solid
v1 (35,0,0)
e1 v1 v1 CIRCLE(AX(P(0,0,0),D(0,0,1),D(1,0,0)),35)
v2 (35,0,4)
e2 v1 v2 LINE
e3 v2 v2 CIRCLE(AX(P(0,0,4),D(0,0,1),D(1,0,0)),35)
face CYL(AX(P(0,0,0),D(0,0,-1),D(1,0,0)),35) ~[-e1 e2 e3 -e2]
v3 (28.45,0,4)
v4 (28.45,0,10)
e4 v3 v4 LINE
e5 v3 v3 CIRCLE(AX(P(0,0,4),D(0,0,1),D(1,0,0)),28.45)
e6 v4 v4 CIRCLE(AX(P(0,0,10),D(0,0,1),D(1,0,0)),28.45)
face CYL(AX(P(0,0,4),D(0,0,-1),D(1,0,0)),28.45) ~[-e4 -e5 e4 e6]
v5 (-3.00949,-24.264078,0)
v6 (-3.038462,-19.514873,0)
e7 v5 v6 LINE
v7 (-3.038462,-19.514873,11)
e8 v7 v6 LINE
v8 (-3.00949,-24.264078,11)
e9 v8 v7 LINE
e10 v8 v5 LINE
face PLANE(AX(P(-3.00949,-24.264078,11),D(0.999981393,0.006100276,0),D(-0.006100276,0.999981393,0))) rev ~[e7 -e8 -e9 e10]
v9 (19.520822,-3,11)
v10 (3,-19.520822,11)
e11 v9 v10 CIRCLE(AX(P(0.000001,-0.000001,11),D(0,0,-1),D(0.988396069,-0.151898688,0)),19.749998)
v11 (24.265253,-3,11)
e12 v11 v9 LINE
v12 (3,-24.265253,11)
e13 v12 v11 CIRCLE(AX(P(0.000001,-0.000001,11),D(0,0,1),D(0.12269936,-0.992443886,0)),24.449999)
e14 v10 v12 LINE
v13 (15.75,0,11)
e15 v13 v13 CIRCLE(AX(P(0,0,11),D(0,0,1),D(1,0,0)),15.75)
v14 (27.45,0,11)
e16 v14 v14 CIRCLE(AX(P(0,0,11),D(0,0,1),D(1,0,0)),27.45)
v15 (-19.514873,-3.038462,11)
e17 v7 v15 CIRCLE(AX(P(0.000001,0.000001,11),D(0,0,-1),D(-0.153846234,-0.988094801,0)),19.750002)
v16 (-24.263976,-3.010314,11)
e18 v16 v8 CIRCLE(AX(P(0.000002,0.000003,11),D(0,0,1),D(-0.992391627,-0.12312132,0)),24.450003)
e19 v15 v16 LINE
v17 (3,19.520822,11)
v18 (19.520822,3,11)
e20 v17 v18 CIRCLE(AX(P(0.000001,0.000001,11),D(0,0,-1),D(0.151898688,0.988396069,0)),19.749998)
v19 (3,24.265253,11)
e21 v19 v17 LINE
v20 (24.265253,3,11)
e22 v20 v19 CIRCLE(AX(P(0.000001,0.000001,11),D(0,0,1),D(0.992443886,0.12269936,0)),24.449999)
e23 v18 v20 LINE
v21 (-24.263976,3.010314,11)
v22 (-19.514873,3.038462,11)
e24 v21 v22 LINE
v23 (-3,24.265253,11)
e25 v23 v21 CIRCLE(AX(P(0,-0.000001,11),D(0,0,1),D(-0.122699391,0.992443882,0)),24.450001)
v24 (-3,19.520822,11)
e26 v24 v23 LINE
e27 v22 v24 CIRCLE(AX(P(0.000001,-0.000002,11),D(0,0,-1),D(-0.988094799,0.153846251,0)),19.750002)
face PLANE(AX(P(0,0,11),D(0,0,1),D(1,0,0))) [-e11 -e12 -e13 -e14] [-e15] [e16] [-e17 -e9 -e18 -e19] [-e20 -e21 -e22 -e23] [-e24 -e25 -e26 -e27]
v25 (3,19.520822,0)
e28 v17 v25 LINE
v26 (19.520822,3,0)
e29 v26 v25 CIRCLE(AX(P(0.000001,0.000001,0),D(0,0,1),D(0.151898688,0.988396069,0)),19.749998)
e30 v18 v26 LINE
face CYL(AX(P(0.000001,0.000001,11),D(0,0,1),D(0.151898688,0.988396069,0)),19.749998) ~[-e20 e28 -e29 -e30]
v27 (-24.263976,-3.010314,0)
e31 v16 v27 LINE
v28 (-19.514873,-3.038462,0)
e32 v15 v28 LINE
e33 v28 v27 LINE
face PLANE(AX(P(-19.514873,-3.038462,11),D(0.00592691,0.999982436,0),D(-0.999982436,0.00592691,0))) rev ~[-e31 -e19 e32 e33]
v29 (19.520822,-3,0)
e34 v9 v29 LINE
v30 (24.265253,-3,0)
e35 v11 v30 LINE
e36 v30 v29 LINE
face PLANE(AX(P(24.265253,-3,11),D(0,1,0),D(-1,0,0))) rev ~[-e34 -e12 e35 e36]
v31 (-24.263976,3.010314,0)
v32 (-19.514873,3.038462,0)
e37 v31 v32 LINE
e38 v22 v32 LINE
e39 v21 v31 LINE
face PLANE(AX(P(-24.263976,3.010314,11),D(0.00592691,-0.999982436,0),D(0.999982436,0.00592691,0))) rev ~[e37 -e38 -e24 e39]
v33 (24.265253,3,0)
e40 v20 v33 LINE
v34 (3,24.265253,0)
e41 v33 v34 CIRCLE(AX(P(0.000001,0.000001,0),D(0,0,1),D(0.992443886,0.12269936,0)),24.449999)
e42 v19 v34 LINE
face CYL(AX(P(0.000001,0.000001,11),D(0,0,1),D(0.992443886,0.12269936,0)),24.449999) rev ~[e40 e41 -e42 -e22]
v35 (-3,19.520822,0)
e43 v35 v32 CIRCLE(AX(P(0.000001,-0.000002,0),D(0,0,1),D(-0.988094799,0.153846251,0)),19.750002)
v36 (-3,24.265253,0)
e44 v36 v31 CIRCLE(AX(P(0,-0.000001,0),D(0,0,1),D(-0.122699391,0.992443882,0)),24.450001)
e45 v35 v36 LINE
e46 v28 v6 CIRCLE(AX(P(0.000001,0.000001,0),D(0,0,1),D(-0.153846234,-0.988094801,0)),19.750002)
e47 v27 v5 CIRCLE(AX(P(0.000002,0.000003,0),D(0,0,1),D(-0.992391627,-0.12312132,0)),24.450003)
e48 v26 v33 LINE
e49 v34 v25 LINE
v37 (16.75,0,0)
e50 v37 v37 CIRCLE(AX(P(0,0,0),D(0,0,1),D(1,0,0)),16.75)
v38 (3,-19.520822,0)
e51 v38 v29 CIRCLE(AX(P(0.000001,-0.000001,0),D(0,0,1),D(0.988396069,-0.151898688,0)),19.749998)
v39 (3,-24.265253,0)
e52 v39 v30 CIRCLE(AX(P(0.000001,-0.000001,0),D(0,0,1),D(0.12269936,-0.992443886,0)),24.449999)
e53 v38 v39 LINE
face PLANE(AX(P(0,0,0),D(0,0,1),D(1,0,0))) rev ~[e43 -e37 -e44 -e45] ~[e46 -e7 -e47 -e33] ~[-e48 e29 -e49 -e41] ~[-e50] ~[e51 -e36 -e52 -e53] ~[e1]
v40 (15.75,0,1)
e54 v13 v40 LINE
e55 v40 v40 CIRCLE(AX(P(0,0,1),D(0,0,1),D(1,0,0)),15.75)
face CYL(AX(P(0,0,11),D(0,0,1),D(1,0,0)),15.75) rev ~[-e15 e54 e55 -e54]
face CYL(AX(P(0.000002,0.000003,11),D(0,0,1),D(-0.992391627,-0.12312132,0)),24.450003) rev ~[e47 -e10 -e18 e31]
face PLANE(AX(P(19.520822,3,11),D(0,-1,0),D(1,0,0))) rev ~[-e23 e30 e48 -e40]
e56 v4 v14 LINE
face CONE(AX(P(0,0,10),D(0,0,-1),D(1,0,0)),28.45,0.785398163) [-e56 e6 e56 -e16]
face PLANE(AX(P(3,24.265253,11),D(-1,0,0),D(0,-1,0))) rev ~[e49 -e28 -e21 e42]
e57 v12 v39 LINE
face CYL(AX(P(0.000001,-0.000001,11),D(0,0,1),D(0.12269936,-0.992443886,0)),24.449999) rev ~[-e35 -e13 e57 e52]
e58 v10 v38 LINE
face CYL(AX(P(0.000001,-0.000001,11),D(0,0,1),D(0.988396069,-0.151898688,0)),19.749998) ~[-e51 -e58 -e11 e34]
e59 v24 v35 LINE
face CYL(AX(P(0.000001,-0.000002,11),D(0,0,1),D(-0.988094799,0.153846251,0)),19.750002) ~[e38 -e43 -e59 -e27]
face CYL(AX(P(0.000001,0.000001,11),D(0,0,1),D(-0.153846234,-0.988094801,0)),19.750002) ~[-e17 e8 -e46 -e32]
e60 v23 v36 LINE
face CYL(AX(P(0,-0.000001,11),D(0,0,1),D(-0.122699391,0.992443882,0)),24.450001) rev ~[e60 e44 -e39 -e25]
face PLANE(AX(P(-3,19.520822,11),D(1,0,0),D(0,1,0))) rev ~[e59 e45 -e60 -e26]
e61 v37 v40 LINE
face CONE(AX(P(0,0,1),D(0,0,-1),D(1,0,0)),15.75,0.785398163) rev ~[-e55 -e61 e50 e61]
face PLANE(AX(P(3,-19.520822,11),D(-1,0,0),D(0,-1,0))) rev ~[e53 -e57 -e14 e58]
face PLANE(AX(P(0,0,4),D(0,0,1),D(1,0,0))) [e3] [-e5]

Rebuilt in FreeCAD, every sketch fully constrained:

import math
import FreeCAD as App
import Part
import Sketcher
from FreeCAD import Vector
Q = App.Units.Quantity


def edges_at(feature, points):
    """Names of the edges that pass closest to the given points."""
    edges = feature.Shape.Edges
    near = lambda p: min(range(len(edges)), key=lambda i: edges[i].distToShape(Part.Vertex(*p))[0])
    return sorted({f"Edge{near(p) + 1}" for p in points})

doc = App.newDocument("Part")
body = doc.addObject("PartDesign::Body", "Body")

sketch1 = body.newObject("Sketcher::SketchObject", "Sketch")
sketch1.AttachmentSupport = (doc.getObject("XY_Plane"), [""])
sketch1.MapMode = "FlatFace"
sketch1.addGeometry(Part.Circle(Vector(0, 0, 0), Vector(0, 0, 1), 35), False)
sketch1.addConstraint([
    Sketcher.Constraint("Coincident", 0, 3, -1, 1),
    Sketcher.Constraint("Diameter", 0, Q("70 mm")),
])
pad1 = body.newObject("PartDesign::Pad", "Pad")
pad1.Profile = sketch1
pad1.Length = 4

sketch2 = body.newObject("Sketcher::SketchObject", "Sketch001")
sketch2.AttachmentSupport = (doc.getObject("XY_Plane"), [""])
sketch2.MapMode = "FlatFace"
sketch2.AttachmentOffset = App.Placement(Vector(0, 0, 4), App.Rotation())
sketch2.addGeometry(Part.Circle(Vector(0, 0, 0), Vector(0, 0, 1), 28), False)
sketch2.addConstraint([
    Sketcher.Constraint("Coincident", 0, 3, -1, 1),
    Sketcher.Constraint("Diameter", 0, Q("56.9 mm")),
])
pad2 = body.newObject("PartDesign::Pad", "Pad001")
pad2.Profile = sketch2
pad2.Length = 7

sketch3 = body.newObject("Sketcher::SketchObject", "Sketch002")
sketch3.AttachmentSupport = (doc.getObject("XY_Plane"), [""])
sketch3.MapMode = "FlatFace"
sketch3.AttachmentOffset = App.Placement(Vector(0, 0, 11), App.Rotation())
sketch3.addGeometry([
    Part.LineSegment(Vector(19.5, 3, 0), Vector(24.3, 3, 0)),
    Part.ArcOfCircle(Part.Circle(Vector(0, 0, 0), Vector(0, 0, 1), 24.4), math.radians(7), math.radians(83)),
    Part.LineSegment(Vector(3, 24.3, 0), Vector(3, 19.5, 0)),
    Part.ArcOfCircle(Part.Circle(Vector(0, 0, 0), Vector(0, 0, 1), 19.7), math.radians(9), math.radians(81)),
    Part.ArcOfCircle(Part.Circle(Vector(0, 0, 0), Vector(0, 0, 1), 24.4), math.radians(-83), math.radians(-7)),
    Part.LineSegment(Vector(24.3, -3, 0), Vector(19.5, -3, 0)),
    Part.ArcOfCircle(Part.Circle(Vector(0, 0, 0), Vector(0, 0, 1), 19.7), math.radians(-81), math.radians(-9)),
    Part.LineSegment(Vector(3, -19.5, 0), Vector(3, -24.3, 0)),
    Part.LineSegment(Vector(-3, 19.5, 0), Vector(-3, 24.3, 0)),
    Part.ArcOfCircle(Part.Circle(Vector(0, 0, 0), Vector(0, 0, 1), 24.5), math.radians(97), math.radians(173)),
    Part.LineSegment(Vector(-24.3, 3, 0), Vector(-19.5, 3, 0)),
    Part.ArcOfCircle(Part.Circle(Vector(0, 0, 0), Vector(0, 0, 1), 19.8), math.radians(99), math.radians(171)),
    Part.ArcOfCircle(Part.Circle(Vector(0, 0, 0), Vector(0, 0, 1), 19.8), math.radians(-171), math.radians(-99)),
    Part.LineSegment(Vector(-19.5, -3, 0), Vector(-24.3, -3, 0)),
    Part.ArcOfCircle(Part.Circle(Vector(0, 0, 0), Vector(0, 0, 1), 24.5), math.radians(-173), math.radians(-97)),
    Part.LineSegment(Vector(-3, -24.3, 0), Vector(-3, -19.5, 0)),
    Part.Circle(Vector(0, 0, 0), Vector(0, 0, 1), 15.8),
], False)
sketch3.addConstraint([
    Sketcher.Constraint("Coincident", 0, 2, 1, 1),
    Sketcher.Constraint("Coincident", 1, 2, 2, 1),
    Sketcher.Constraint("Coincident", 2, 2, 3, 2),
    Sketcher.Constraint("Coincident", 3, 1, 0, 1),
    Sketcher.Constraint("Coincident", 4, 2, 5, 1),
    Sketcher.Constraint("Coincident", 5, 2, 6, 2),
    Sketcher.Constraint("Coincident", 6, 1, 7, 1),
    Sketcher.Constraint("Coincident", 7, 2, 4, 1),
    Sketcher.Constraint("Coincident", 8, 2, 9, 1),
    Sketcher.Constraint("Coincident", 9, 2, 10, 1),
    Sketcher.Constraint("Coincident", 10, 2, 11, 2),
    Sketcher.Constraint("Coincident", 11, 1, 8, 1),
    Sketcher.Constraint("Coincident", 12, 1, 13, 1),
    Sketcher.Constraint("Coincident", 13, 2, 14, 1),
    Sketcher.Constraint("Coincident", 14, 2, 15, 1),
    Sketcher.Constraint("Coincident", 15, 2, 12, 2),
    Sketcher.Constraint("Horizontal", 0),
    Sketcher.Constraint("Vertical", 2),
    Sketcher.Constraint("Horizontal", 5),
    Sketcher.Constraint("Vertical", 7),
    Sketcher.Constraint("Vertical", 8),
    Sketcher.Constraint("Coincident", 1, 3, -1, 1),
    Sketcher.Constraint("Coincident", 3, 3, -1, 1),
    Sketcher.Constraint("Coincident", 4, 3, -1, 1),
    Sketcher.Constraint("Coincident", 6, 3, -1, 1),
    Sketcher.Constraint("Coincident", 9, 3, -1, 1),
    Sketcher.Constraint("Coincident", 11, 3, -1, 1),
    Sketcher.Constraint("Coincident", 12, 3, -1, 1),
    Sketcher.Constraint("Coincident", 14, 3, -1, 1),
    Sketcher.Constraint("Coincident", 16, 3, -1, 1),
    Sketcher.Constraint("Equal", 1, 4),
    Sketcher.Constraint("Equal", 3, 6),
    Sketcher.Constraint("Equal", 4, 9),
    Sketcher.Constraint("Equal", 11, 12),
    Sketcher.Constraint("Symmetric", 6, 1, 11, 1, -1, 1),
    Sketcher.Constraint("Symmetric", 9, 2, 13, 2, -1),
    Sketcher.Constraint("Horizontal", 1, 2, 8, 2),
    Sketcher.Constraint("Vertical", 0, 2, 4, 2),
    Sketcher.Constraint("Vertical", 10, 2, 12, 1),
    Sketcher.Constraint("Equal", 5, 2),
    Sketcher.Constraint("Diameter", 16, Q("31.5 mm")),
    Sketcher.Constraint("Radius", 1, Q("24.449999 mm")),
    Sketcher.Constraint("Radius", 3, Q("19.749998 mm")),
    Sketcher.Constraint("DistanceY", -1, 1, 0, 2, Q("3 mm")),
    Sketcher.Constraint("DistanceY", -1, 1, 10, 2, Q("3.038462 mm")),
    Sketcher.Constraint("DistanceX", 14, 2, -1, 1, Q("3.00949 mm")),
    Sketcher.Constraint("DistanceX", 15, 2, -1, 1, Q("3.038462 mm")),
    Sketcher.Constraint("DistanceY", 9, 2, 10, 2, Q("0.028148 mm")),
])
pocket1 = body.newObject("PartDesign::Pocket", "Pocket")
pocket1.Profile = sketch3
pocket1.Type = "ThroughAll"
doc.recompute()

chamfer = body.newObject("PartDesign::Chamfer", "Chamfer")
chamfer.Base = (pocket1, edges_at(pocket1, [(-28.45, 0, 11), (-15.75, 0, 0)]))
chamfer.Size = 1

doc.recompute()
